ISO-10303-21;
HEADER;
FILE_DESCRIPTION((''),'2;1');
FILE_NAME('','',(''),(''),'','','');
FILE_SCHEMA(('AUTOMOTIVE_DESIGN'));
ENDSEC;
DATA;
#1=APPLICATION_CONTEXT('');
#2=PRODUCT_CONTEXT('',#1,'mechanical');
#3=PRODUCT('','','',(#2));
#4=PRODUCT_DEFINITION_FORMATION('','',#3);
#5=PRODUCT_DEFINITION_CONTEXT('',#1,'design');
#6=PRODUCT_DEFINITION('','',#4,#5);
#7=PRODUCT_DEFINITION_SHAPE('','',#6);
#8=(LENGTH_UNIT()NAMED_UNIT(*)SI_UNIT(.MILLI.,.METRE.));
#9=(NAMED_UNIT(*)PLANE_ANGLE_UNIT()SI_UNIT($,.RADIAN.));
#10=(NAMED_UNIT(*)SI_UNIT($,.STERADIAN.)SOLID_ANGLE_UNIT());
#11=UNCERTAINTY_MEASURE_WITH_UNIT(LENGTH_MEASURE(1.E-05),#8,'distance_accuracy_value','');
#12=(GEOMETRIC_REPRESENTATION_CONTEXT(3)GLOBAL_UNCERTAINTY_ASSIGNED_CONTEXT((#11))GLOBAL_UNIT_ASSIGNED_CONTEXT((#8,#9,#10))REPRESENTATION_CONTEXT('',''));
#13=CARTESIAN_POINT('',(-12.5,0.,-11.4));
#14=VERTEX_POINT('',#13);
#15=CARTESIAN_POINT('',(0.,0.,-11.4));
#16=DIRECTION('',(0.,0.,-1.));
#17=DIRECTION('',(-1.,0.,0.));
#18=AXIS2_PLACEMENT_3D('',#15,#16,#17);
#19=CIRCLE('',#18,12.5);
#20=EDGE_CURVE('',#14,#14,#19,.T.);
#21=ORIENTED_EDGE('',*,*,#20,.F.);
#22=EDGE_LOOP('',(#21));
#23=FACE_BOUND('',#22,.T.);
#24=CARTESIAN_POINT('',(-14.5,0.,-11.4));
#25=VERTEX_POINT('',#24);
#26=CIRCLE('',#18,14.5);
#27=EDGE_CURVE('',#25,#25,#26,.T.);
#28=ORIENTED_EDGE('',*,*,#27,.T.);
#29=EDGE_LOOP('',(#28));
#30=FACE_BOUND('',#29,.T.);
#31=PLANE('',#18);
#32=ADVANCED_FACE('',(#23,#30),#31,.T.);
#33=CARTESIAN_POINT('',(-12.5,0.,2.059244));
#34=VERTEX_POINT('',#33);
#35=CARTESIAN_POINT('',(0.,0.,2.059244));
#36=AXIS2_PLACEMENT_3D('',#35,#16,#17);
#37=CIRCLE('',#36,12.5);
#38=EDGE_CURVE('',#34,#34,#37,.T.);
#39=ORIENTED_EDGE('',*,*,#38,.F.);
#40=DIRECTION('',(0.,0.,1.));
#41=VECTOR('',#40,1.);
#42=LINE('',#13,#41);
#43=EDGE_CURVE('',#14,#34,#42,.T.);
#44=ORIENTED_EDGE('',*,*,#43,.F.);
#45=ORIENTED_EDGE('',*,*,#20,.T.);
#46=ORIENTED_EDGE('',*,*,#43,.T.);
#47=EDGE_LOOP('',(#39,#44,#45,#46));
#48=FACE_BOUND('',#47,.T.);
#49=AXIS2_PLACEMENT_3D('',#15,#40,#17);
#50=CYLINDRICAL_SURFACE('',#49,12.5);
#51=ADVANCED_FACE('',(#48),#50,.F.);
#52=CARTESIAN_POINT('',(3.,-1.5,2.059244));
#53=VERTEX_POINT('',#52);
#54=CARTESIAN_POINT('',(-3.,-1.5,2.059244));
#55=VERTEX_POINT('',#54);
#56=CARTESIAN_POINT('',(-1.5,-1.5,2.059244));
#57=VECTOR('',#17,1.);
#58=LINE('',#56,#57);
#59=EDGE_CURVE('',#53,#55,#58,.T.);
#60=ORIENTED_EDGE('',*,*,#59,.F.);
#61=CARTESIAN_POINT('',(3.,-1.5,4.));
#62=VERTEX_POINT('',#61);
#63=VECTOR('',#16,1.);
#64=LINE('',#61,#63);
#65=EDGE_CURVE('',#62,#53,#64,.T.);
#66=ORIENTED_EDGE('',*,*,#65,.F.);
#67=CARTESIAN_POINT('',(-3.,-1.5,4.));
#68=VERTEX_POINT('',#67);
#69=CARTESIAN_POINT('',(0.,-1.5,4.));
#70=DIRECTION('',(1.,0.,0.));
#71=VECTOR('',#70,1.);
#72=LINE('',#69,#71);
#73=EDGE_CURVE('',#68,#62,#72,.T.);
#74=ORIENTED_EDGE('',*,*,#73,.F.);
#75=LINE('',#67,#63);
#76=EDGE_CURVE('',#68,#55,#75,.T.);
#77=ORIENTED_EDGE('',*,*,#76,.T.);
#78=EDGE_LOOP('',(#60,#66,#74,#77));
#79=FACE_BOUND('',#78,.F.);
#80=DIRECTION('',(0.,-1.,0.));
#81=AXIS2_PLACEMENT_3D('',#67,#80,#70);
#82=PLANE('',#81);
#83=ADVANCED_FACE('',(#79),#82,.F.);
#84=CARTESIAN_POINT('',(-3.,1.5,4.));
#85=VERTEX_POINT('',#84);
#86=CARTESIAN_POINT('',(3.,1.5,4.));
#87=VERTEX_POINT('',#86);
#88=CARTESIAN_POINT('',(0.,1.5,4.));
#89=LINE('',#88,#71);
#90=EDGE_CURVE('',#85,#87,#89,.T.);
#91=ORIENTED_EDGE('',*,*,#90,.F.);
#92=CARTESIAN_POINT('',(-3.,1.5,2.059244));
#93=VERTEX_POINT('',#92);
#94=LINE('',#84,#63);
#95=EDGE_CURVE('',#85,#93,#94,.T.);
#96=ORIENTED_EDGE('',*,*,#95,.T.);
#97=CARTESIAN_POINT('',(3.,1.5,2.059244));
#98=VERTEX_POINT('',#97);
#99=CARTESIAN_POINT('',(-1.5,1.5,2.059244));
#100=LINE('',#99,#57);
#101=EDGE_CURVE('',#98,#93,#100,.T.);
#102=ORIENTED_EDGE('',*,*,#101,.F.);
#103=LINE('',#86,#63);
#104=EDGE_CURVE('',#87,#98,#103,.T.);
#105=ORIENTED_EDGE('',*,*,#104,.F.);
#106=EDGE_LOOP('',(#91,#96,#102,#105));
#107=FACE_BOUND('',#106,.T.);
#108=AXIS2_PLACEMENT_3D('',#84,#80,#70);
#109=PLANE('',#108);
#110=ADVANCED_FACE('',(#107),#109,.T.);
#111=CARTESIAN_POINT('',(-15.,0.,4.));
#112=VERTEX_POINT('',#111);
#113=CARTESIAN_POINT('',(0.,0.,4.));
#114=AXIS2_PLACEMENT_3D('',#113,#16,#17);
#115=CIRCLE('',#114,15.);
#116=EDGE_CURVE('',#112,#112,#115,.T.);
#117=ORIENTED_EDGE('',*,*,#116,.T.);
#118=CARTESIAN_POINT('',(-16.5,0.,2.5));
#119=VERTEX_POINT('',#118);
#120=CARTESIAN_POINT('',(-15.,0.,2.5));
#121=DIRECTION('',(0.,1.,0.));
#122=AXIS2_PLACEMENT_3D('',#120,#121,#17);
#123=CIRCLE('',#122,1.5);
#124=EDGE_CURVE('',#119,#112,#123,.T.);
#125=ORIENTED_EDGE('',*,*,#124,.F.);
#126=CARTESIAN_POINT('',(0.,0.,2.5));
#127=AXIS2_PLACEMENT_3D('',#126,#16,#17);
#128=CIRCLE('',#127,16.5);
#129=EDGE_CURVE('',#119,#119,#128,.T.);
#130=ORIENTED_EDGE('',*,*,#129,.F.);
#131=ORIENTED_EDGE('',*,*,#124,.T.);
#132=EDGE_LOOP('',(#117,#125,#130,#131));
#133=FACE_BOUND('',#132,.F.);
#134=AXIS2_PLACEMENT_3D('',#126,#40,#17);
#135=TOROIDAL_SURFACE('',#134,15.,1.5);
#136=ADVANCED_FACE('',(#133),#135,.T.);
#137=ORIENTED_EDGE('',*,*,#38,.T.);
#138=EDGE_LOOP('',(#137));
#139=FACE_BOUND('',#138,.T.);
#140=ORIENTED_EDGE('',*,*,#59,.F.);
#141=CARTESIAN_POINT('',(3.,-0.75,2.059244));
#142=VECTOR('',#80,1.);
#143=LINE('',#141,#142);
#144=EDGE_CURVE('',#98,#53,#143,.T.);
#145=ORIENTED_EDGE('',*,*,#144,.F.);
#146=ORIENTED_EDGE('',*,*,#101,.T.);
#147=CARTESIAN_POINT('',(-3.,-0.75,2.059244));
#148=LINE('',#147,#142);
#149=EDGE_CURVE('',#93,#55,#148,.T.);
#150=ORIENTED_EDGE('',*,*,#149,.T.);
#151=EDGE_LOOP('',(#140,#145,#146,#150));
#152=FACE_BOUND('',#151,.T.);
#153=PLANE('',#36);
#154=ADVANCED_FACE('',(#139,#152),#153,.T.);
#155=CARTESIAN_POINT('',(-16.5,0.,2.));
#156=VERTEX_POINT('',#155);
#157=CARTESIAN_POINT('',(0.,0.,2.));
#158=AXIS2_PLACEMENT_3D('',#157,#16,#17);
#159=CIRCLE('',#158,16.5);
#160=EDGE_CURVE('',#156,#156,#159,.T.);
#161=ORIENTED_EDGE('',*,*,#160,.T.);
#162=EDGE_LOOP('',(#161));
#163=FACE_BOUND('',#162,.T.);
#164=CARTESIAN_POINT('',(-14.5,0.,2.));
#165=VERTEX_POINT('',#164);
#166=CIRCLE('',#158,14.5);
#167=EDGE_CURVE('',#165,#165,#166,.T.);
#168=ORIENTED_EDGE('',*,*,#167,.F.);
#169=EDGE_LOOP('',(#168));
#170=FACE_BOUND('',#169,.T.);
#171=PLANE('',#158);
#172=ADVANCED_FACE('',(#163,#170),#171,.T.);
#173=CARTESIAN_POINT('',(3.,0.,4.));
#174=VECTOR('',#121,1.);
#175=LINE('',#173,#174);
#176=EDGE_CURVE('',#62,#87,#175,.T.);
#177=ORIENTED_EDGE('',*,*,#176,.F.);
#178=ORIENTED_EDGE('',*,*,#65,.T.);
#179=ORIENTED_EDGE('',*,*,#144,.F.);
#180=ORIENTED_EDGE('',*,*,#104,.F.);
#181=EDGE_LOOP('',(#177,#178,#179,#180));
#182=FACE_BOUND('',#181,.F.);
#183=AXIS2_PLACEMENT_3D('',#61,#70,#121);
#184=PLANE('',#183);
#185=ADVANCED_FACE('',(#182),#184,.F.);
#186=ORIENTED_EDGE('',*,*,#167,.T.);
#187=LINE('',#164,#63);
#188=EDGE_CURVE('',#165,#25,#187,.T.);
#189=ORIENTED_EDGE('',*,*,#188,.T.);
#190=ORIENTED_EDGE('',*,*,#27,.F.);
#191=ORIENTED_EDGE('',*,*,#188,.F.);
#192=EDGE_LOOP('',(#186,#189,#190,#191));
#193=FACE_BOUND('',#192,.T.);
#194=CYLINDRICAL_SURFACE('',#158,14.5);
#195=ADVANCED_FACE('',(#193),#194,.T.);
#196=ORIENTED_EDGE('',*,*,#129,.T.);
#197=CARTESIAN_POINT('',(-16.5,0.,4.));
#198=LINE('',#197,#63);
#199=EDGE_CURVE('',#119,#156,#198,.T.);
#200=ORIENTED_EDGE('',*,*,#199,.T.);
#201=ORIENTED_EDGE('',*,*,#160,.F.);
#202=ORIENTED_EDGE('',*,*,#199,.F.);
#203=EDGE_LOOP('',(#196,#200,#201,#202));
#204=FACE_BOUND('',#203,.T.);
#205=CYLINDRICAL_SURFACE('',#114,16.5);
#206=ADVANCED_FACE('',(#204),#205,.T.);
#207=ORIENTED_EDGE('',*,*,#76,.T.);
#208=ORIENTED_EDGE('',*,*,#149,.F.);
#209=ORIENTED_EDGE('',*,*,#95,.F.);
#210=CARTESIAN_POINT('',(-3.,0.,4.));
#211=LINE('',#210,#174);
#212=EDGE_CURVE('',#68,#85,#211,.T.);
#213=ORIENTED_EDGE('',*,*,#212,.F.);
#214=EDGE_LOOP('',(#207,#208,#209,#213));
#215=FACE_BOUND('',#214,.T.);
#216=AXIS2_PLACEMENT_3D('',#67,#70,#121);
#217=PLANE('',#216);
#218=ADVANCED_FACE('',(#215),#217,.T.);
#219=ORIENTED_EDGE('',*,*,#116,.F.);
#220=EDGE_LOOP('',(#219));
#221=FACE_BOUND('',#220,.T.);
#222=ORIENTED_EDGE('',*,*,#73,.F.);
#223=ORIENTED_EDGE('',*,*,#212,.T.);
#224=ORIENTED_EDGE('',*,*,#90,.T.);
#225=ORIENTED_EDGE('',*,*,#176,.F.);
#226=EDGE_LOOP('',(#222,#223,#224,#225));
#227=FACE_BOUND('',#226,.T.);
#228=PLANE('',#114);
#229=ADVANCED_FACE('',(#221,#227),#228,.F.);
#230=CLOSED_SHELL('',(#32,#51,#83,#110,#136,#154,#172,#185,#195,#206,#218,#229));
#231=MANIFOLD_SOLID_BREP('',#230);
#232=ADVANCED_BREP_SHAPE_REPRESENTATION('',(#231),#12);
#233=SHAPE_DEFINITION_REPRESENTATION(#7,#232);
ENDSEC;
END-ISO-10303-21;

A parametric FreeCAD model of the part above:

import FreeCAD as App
import Part
import Sketcher
from FreeCAD import Vector
Q = App.Units.Quantity


def edges_at(feature, points):
    """Names of the edges that pass closest to the given points."""
    edges = feature.Shape.Edges
    near = lambda p: min(range(len(edges)), key=lambda i: edges[i].distToShape(Part.Vertex(*p))[0])
    return sorted({f"Edge{near(p) + 1}" for p in points})


def add_polygon(sketch, points):
    """Adds a closed chain of lines whose ends are joined by coincident constraints."""
    first, n = sketch.GeometryCount, len(points)
    for a, b in zip(points, points[1:] + points[:1]):
        sketch.addGeometry(Part.LineSegment(App.Vector(*a, 0), App.Vector(*b, 0)), False)
    for i in range(n):
        sketch.addConstraint(Sketcher.Constraint("Coincident", first + i, 2, first + (i + 1) % n, 1))

doc = App.newDocument("Part")
params = doc.addObject("Spreadsheet::Sheet", "Params")
for row, (alias, value) in enumerate([
    ("sketch1_width", "2 mm"),
    ("sketch1_width2", "12.5 mm"),
    ("sketch1_height", "13.4 mm"),
    ("revolution_angle", "360 deg"),
    ("sketch2_width", "6 mm"),
    ("sketch2_height", "3 mm"),
    ("pocket1_length", "25 mm"),
    ("fillet_radius", "1.5 mm"),
], start=1):
    params.set(f"A{row}", alias)
    params.set(f"B{row}", "=" + value)
    params.setAlias(f"B{row}", alias)

body = doc.addObject("PartDesign::Body", "Body")

sketch1 = body.newObject("Sketcher::SketchObject", "Sketch")
sketch1.AttachmentSupport = (doc.getObject("XZ_Plane"), [""])
sketch1.MapMode = "FlatFace"
add_polygon(sketch1, [(-16.5, 2), (-14.5, 2), (-14.5, -11.4), (-12.5, -11.4), (-12.5, 2.059244), (0, 2.059244), (0, 4), (-16.5, 4)])
sketch1.addConstraint([
    Sketcher.Constraint("Horizontal", 0),
    Sketcher.Constraint("Vertical", 1),
    Sketcher.Constraint("Horizontal", 2),
    Sketcher.Constraint("Vertical", 3),
    Sketcher.Constraint("Horizontal", 4),
    Sketcher.Constraint("Vertical", 5),
    Sketcher.Constraint("Horizontal", 6),
    Sketcher.Constraint("Vertical", 7),
    Sketcher.Constraint("PointOnObject", 4, 2, -2),
    Sketcher.Constraint("Equal", 0, 2),
    Sketcher.Constraint("Equal", 2, 7),
    Sketcher.Constraint("DistanceX", 0, 1, 0, 2, Q("2 mm")),
    Sketcher.Constraint("DistanceX", 4, 1, 4, 2, Q("12.5 mm")),
    Sketcher.Constraint("DistanceY", 1, 2, 1, 1, Q("13.4 mm")),
    Sketcher.Constraint("DistanceY", -1, 1, 0, 2, Q("2 mm")),
    Sketcher.Constraint("DistanceY", 3, 1, 3, 2, Q("13.459244 mm")),
])
sketch1.setExpression("Constraints[19]", "Params.sketch1_width")
sketch1.setExpression("Constraints[20]", "Params.sketch1_width2")
sketch1.setExpression("Constraints[21]", "Params.sketch1_height")
revolution = body.newObject("PartDesign::Revolution", "Revolution")
revolution.Profile = sketch1
revolution.ReferenceAxis = (sketch1, ["V_Axis"])
revolution.setExpression("Angle", "Params.revolution_angle")

sketch2 = body.newObject("Sketcher::SketchObject", "Sketch001")
sketch2.AttachmentSupport = (doc.getObject("XY_Plane"), [""])
sketch2.MapMode = "FlatFace"
sketch2.AttachmentOffset = App.Placement(Vector(0, 0, 4), App.Rotation())
add_polygon(sketch2, [(-3, 1.5), (-3, -1.5), (3, -1.5), (3, 1.5)])
sketch2.addConstraint([
    Sketcher.Constraint("Vertical", 0),
    Sketcher.Constraint("Horizontal", 1),
    Sketcher.Constraint("Vertical", 2),
    Sketcher.Constraint("Horizontal", 3),
    Sketcher.Constraint("Symmetric", 0, 2, 2, 2, -1, 1),
    Sketcher.Constraint("DistanceX", 1, 1, 1, 2, Q("6 mm")),
    Sketcher.Constraint("DistanceY", 0, 2, 0, 1, Q("3 mm")),
])
sketch2.setExpression("Constraints[9]", "Params.sketch2_width")
sketch2.setExpression("Constraints[10]", "Params.sketch2_height")
pocket1 = body.newObject("PartDesign::Pocket", "Pocket")
pocket1.Profile = sketch2
pocket1.setExpression("Length", "Params.pocket1_length")
doc.recompute()

fillet = body.newObject("PartDesign::Fillet", "Fillet")
fillet.Base = (pocket1, edges_at(pocket1, [(16.5, 0, 4)]))
fillet.setExpression("Radius", "Params.fillet_radius")

doc.recompute()
